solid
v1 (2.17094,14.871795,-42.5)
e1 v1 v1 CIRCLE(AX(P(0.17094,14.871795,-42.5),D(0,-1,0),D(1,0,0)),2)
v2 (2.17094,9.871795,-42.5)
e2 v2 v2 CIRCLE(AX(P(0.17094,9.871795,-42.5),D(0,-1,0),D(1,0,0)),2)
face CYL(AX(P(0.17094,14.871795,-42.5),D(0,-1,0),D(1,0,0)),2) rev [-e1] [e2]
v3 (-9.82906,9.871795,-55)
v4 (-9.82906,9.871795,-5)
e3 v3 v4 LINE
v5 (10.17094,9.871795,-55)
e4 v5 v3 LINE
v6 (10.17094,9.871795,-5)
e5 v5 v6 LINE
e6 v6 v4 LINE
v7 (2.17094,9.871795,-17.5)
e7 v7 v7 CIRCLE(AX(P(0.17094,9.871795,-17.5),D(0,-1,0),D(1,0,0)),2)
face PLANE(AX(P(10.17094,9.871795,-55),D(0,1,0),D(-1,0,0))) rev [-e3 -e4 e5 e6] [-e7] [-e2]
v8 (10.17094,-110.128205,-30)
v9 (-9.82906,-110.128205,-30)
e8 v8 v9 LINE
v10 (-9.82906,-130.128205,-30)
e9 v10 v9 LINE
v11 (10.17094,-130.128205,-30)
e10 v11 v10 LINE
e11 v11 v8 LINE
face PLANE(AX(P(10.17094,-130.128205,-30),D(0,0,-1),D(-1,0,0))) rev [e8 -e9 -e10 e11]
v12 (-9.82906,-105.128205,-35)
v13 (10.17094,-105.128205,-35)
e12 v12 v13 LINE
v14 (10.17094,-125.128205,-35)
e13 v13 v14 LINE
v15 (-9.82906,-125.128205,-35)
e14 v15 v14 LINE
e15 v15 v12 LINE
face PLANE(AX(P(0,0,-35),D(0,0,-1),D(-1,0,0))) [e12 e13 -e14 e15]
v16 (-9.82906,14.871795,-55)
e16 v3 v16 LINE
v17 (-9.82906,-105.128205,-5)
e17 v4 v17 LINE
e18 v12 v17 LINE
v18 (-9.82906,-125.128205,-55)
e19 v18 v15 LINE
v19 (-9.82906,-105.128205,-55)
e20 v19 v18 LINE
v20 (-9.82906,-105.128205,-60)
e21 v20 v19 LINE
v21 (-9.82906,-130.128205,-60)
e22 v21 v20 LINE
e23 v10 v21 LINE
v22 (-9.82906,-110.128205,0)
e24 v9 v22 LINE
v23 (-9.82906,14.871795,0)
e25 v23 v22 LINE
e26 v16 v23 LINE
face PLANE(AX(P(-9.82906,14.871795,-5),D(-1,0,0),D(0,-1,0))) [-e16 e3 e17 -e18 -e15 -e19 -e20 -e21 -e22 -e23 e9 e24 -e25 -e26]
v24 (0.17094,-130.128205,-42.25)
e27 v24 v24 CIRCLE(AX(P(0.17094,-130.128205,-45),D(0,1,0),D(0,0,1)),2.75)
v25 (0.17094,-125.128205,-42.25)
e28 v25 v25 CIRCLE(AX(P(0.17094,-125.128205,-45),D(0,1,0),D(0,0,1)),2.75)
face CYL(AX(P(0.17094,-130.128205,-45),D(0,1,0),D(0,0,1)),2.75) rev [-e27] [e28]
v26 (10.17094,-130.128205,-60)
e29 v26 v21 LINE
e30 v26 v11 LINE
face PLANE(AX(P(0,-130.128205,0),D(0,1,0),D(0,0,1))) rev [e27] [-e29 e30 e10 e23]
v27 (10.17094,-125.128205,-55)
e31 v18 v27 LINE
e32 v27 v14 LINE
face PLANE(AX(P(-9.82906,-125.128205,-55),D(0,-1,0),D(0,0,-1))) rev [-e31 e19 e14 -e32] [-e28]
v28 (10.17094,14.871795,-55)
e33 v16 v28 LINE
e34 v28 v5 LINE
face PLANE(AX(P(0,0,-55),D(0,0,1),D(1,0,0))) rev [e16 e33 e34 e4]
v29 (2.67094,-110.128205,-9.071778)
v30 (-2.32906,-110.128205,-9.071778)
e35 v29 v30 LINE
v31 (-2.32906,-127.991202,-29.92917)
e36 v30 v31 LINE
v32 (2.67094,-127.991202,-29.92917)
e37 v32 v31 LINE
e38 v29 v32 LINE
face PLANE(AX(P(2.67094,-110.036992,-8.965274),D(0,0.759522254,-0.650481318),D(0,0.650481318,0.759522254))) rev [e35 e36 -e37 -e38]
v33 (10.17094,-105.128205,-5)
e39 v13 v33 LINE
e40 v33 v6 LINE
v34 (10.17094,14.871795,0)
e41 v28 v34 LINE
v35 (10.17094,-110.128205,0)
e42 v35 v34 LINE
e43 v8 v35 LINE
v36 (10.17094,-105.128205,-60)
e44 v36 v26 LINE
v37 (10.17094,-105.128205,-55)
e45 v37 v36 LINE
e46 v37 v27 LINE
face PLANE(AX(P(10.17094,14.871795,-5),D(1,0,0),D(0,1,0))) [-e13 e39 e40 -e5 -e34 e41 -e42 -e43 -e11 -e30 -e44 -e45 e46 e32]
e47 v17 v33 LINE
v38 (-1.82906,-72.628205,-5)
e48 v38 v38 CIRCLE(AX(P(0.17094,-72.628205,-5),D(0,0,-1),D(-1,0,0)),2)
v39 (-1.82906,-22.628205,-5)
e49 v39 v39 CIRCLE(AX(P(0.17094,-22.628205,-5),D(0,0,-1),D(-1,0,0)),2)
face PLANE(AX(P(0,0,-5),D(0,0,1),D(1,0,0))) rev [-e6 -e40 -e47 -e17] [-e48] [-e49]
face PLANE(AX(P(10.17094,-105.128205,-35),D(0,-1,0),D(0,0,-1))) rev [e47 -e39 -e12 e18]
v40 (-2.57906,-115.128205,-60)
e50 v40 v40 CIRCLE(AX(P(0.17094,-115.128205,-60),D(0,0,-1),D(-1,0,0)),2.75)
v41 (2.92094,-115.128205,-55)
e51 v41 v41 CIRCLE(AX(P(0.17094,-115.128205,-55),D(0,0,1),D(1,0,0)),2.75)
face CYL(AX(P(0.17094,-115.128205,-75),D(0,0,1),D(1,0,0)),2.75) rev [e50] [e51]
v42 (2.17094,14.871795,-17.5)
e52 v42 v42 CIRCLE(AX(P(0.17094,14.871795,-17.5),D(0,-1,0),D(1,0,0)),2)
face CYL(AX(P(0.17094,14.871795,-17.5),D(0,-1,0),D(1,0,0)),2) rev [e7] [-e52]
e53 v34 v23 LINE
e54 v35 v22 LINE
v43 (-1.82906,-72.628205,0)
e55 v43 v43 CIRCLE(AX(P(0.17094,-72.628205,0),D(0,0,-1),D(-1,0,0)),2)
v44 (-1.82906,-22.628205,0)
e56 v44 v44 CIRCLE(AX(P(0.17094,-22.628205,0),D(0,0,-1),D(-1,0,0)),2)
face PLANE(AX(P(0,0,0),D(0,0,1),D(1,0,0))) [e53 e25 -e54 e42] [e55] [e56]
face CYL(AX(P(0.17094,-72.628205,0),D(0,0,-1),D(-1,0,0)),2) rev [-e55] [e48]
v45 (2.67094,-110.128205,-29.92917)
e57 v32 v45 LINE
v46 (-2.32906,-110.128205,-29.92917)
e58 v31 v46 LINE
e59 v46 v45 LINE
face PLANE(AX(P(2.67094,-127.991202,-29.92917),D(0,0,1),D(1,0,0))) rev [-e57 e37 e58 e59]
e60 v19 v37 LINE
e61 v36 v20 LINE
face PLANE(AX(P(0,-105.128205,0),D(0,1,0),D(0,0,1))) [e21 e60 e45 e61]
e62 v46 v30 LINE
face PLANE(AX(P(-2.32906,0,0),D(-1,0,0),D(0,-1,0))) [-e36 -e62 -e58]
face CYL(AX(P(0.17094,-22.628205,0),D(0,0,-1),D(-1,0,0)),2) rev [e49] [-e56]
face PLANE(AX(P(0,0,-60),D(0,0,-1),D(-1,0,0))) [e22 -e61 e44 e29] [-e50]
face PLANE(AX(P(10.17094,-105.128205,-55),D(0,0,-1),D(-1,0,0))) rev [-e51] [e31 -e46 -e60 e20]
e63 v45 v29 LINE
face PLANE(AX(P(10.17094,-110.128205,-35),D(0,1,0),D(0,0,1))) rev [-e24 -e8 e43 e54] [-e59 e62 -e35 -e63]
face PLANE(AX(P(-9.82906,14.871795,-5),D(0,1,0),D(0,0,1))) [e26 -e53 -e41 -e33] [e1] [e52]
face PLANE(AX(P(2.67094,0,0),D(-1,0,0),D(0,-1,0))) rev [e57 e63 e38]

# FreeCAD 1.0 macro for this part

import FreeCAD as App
import Part
import Sketcher

V = App.Vector


def add_polygon(sketch, points):
    """Adds a closed chain of lines whose ends are joined by coincident constraints."""
    first, n = sketch.GeometryCount, len(points)
    for a, b in zip(points, points[1:] + points[:1]):
        sketch.addGeometry(Part.LineSegment(App.Vector(*a, 0), App.Vector(*b, 0)), False)
    for i in range(n):
        sketch.addConstraint(Sketcher.Constraint("Coincident", first + i, 2, first + (i + 1) % n, 1))

doc = App.newDocument("Part")
body = doc.addObject("PartDesign::Body", "Body")

# Sketch on XY plane
sketch1 = body.newObject("Sketcher::SketchObject", "Sketch")
sketch1.AttachmentSupport = (doc.getObject("XY_Plane"), [""])
sketch1.MapMode = "FlatFace"
add_polygon(sketch1, [(-9.82906, 14.871795), (-9.82906, -130.128205), (10.17094, -130.128205), (10.17094, 14.871795)])  # lines 0-3
sketch1.addConstraint(Sketcher.Constraint("Vertical", 0))
sketch1.addConstraint(Sketcher.Constraint("Horizontal", 1))
sketch1.addConstraint(Sketcher.Constraint("Vertical", 2))
sketch1.addConstraint(Sketcher.Constraint("Horizontal", 3))
sketch1.addConstraint(Sketcher.Constraint("DistanceX", 1, 1, 1, 2, 20.0))
sketch1.addConstraint(Sketcher.Constraint("DistanceY", 0, 2, 0, 1, 145.0))
sketch1.addConstraint(Sketcher.Constraint("DistanceX", 0, 2, -1, 1, 9.82906))
sketch1.addConstraint(Sketcher.Constraint("DistanceY", 0, 2, -1, 1, 130.128205))
pad1 = body.newObject("PartDesign::Pad", "Pad")
pad1.Profile = sketch1
pad1.Length = 5
pad1.Reversed = True

# Sketch on XY plane
sketch2 = body.newObject("Sketcher::SketchObject", "Sketch001")
sketch2.AttachmentSupport = (doc.getObject("XY_Plane"), [""])
sketch2.MapMode = "FlatFace"
sketch2.AttachmentOffset = App.Placement(V(0, 0, -5), App.Rotation())
add_polygon(sketch2, [(10.17094, 14.871795), (10.17094, 9.871795), (-9.82906, 9.871795), (-9.82906, 14.871795)])  # lines 0-3
sketch2.addConstraint(Sketcher.Constraint("Vertical", 0))
sketch2.addConstraint(Sketcher.Constraint("Horizontal", 1))
sketch2.addConstraint(Sketcher.Constraint("Vertical", 2))
sketch2.addConstraint(Sketcher.Constraint("Horizontal", 3))
sketch2.addConstraint(Sketcher.Constraint("DistanceX", 1, 2, 1, 1, 20.0))
sketch2.addConstraint(Sketcher.Constraint("DistanceY", 0, 2, 0, 1, 5.0))
sketch2.addConstraint(Sketcher.Constraint("DistanceX", -1, 1, 0, 2, 10.17094))
sketch2.addConstraint(Sketcher.Constraint("DistanceY", -1, 1, 0, 2, 9.871795))
pad2 = body.newObject("PartDesign::Pad", "Pad001")
pad2.Profile = sketch2
pad2.Length = 50
pad2.Reversed = True

# Sketch on XY plane
sketch3 = body.newObject("Sketcher::SketchObject", "Sketch002")
sketch3.AttachmentSupport = (doc.getObject("XY_Plane"), [""])
sketch3.MapMode = "FlatFace"
sketch3.AttachmentOffset = App.Placement(V(0, 0, -5), App.Rotation())
add_polygon(sketch3, [(10.17094, -105.128205), (10.17094, -110.128205), (-9.82906, -110.128205), (-9.82906, -105.128205)])  # lines 0-3
sketch3.addConstraint(Sketcher.Constraint("Vertical", 0))
sketch3.addConstraint(Sketcher.Constraint("Horizontal", 1))
sketch3.addConstraint(Sketcher.Constraint("Vertical", 2))
sketch3.addConstraint(Sketcher.Constraint("Horizontal", 3))
sketch3.addConstraint(Sketcher.Constraint("DistanceX", 1, 2, 1, 1, 20.0))
sketch3.addConstraint(Sketcher.Constraint("DistanceY", 0, 2, 0, 1, 5.0))
sketch3.addConstraint(Sketcher.Constraint("DistanceX", -1, 1, 0, 2, 10.17094))
sketch3.addConstraint(Sketcher.Constraint("DistanceY", 0, 2, -1, 1, 110.128205))
pad3 = body.newObject("PartDesign::Pad", "Pad002")
pad3.Profile = sketch3
pad3.Length = 30
pad3.Reversed = True

# Sketch on XY plane
sketch4 = body.newObject("Sketcher::SketchObject", "Sketch003")
sketch4.AttachmentSupport = (doc.getObject("XY_Plane"), [""])
sketch4.MapMode = "FlatFace"
sketch4.AttachmentOffset = App.Placement(V(0, 0, -5), App.Rotation())
add_polygon(sketch4, [(10.17094, -110.128205), (10.17094, -130.128205), (-9.82906, -130.128205), (-9.82906, -110.128205)])  # lines 0-3
sketch4.addConstraint(Sketcher.Constraint("Vertical", 0))
sketch4.addConstraint(Sketcher.Constraint("Horizontal", 1))
sketch4.addConstraint(Sketcher.Constraint("Vertical", 2))
sketch4.addConstraint(Sketcher.Constraint("Horizontal", 3))
sketch4.addConstraint(Sketcher.Constraint("Equal", 3, 0))
sketch4.addConstraint(Sketcher.Constraint("DistanceX", 1, 2, 1, 1, 20.0))
sketch4.addConstraint(Sketcher.Constraint("DistanceX", -1, 1, 0, 2, 10.17094))
sketch4.addConstraint(Sketcher.Constraint("DistanceY", 0, 2, -1, 1, 130.128205))
pocket1 = body.newObject("PartDesign::Pocket", "Pocket")
pocket1.Profile = sketch4
pocket1.Length = 30
pocket1.Reversed = True

# Sketch on XZ plane
sketch5 = body.newObject("Sketcher::SketchObject", "Sketch004")
sketch5.AttachmentSupport = (doc.getObject("XZ_Plane"), [""])
sketch5.MapMode = "FlatFace"
sketch5.AttachmentOffset = App.Placement(V(0, 0, 110.128205), App.Rotation())
add_polygon(sketch5, [(10.17094, -35), (10.17094, -30), (-9.82906, -30), (-9.82906, -35)])  # lines 0-3
sketch5.addConstraint(Sketcher.Constraint("Vertical", 0))
sketch5.addConstraint(Sketcher.Constraint("Horizontal", 1))
sketch5.addConstraint(Sketcher.Constraint("Vertical", 2))
sketch5.addConstraint(Sketcher.Constraint("Horizontal", 3))
sketch5.addConstraint(Sketcher.Constraint("DistanceX", 1, 2, 1, 1, 20.0))
sketch5.addConstraint(Sketcher.Constraint("DistanceY", 0, 1, 0, 2, 5.0))
sketch5.addConstraint(Sketcher.Constraint("DistanceY", 0, 2, -1, 1, 30.0))
sketch5.addConstraint(Sketcher.Constraint("DistanceX", -1, 1, 0, 2, 10.17094))
pad4 = body.newObject("PartDesign::Pad", "Pad003")
pad4.Profile = sketch5
pad4.Length = 20

# Sketch on XY plane
sketch6 = body.newObject("Sketcher::SketchObject", "Sketch005")
sketch6.AttachmentSupport = (doc.getObject("XY_Plane"), [""])
sketch6.MapMode = "FlatFace"
sketch6.AttachmentOffset = App.Placement(V(0, 0, -35), App.Rotation())
add_polygon(sketch6, [(10.17094, -125.128205), (10.17094, -130.128205), (-9.82906, -130.128205), (-9.82906, -125.128205)])  # lines 0-3
sketch6.addConstraint(Sketcher.Constraint("Vertical", 0))
sketch6.addConstraint(Sketcher.Constraint("Horizontal", 1))
sketch6.addConstraint(Sketcher.Constraint("Vertical", 2))
sketch6.addConstraint(Sketcher.Constraint("Horizontal", 3))
sketch6.addConstraint(Sketcher.Constraint("DistanceX", 1, 2, 1, 1, 20.0))
sketch6.addConstraint(Sketcher.Constraint("DistanceY", 0, 2, 0, 1, 5.0))
sketch6.addConstraint(Sketcher.Constraint("DistanceX", -1, 1, 0, 2, 10.17094))
sketch6.addConstraint(Sketcher.Constraint("DistanceY", 0, 2, -1, 1, 130.128205))
pad5 = body.newObject("PartDesign::Pad", "Pad004")
pad5.Profile = sketch6
pad5.Length = 20
pad5.Reversed = True

# Sketch on YZ plane
sketch7 = body.newObject("Sketcher::SketchObject", "Sketch006")
sketch7.AttachmentSupport = (doc.getObject("YZ_Plane"), [""])
sketch7.MapMode = "FlatFace"
sketch7.AttachmentOffset = App.Placement(V(0, 0, 0.17094), App.Rotation())
add_polygon(sketch7, [(-110.036992, -8.965274), (-127.991202, -29.92917), (-110.036992, -29.92917)])  # lines 0-2
sketch7.addConstraint(Sketcher.Constraint("Horizontal", 1))
sketch7.addConstraint(Sketcher.Constraint("Vertical", 2))
sketch7.addConstraint(Sketcher.Constraint("DistanceX", 1, 1, 1, 2, 17.954211))
sketch7.addConstraint(Sketcher.Constraint("DistanceY", 2, 1, 2, 2, 20.963896))
sketch7.addConstraint(Sketcher.Constraint("DistanceY", 0, 2, -1, 1, 29.92917))
sketch7.addConstraint(Sketcher.Constraint("DistanceX", 1, 2, -1, 1, 110.036992))
pad6 = body.newObject("PartDesign::Pad", "Pad005")
pad6.Profile = sketch7
pad6.Length = 5
pad6.Midplane = True

# Sketch on XZ plane
sketch8 = body.newObject("Sketcher::SketchObject", "Sketch007")
sketch8.AttachmentSupport = (doc.getObject("XZ_Plane"), [""])
sketch8.MapMode = "FlatFace"
sketch8.AttachmentOffset = App.Placement(V(0, 0, -9.871795), App.Rotation())
sketch8.addGeometry(Part.Circle(V(0.17094, -17.5, 0), V(0, 0, 1), 2), False)
sketch8.addGeometry(Part.Circle(V(0.17094, -42.5, 0), V(0, 0, 1), 2), False)
sketch8.addConstraint(Sketcher.Constraint("Equal", 0, 1))
sketch8.addConstraint(Sketcher.Constraint("Vertical", 0, 3, 1, 3))
sketch8.addConstraint(Sketcher.Constraint("Diameter", 0, 4.0))
sketch8.addConstraint(Sketcher.Constraint("DistanceY", 1, 3, 0, 3, 25.0))
sketch8.addConstraint(Sketcher.Constraint("DistanceY", 0, 3, -1, 1, 17.5))
sketch8.addConstraint(Sketcher.Constraint("DistanceX", -1, 1, 0, 3, 0.17094))
pocket2 = body.newObject("PartDesign::Pocket", "Pocket001")
pocket2.Profile = sketch8
pocket2.Length = 5

# Sketch on XY plane
sketch9 = body.newObject("Sketcher::SketchObject", "Sketch008")
sketch9.AttachmentSupport = (doc.getObject("XY_Plane"), [""])
sketch9.MapMode = "FlatFace"
sketch9.AttachmentOffset = App.Placement(V(0, 0, -5), App.Rotation())
sketch9.addGeometry(Part.Circle(V(0.17094, -22.628205, 0), V(0, 0, 1), 2), False)
sketch9.addGeometry(Part.Circle(V(0.17094, -72.628205, 0), V(0, 0, 1), 2), False)
sketch9.addConstraint(Sketcher.Constraint("Equal", 0, 1))
sketch9.addConstraint(Sketcher.Constraint("Vertical", 0, 3, 1, 3))
sketch9.addConstraint(Sketcher.Constraint("Diameter", 0, 4.0))
sketch9.addConstraint(Sketcher.Constraint("DistanceY", 1, 3, 0, 3, 50.0))
sketch9.addConstraint(Sketcher.Constraint("DistanceX", -1, 1, 0, 3, 0.17094))
sketch9.addConstraint(Sketcher.Constraint("DistanceY", 0, 3, -1, 1, 22.628205))
pocket3 = body.newObject("PartDesign::Pocket", "Pocket002")
pocket3.Profile = sketch9
pocket3.Length = 5
pocket3.Reversed = True

# Sketch on XZ plane
sketch10 = body.newObject("Sketcher::SketchObject", "Sketch009")
sketch10.AttachmentSupport = (doc.getObject("XZ_Plane"), [""])
sketch10.MapMode = "FlatFace"
sketch10.AttachmentOffset = App.Placement(V(0, 0, 125.128205), App.Rotation())
sketch10.addGeometry(Part.Circle(V(0.17094, -45, 0), V(0, 0, 1), 2.75), False)
sketch10.addConstraint(Sketcher.Constraint("Diameter", 0, 5.5))
sketch10.addConstraint(Sketcher.Constraint("DistanceY", 0, 3, -1, 1, 45.0))
sketch10.addConstraint(Sketcher.Constraint("DistanceX", -1, 1, 0, 3, 0.17094))
pocket4 = body.newObject("PartDesign::Pocket", "Pocket003")
pocket4.Profile = sketch10
pocket4.Length = 5
pocket4.Reversed = True

# Sketch on XY plane
sketch11 = body.newObject("Sketcher::SketchObject", "Sketch010")
sketch11.AttachmentSupport = (doc.getObject("XY_Plane"), [""])
sketch11.MapMode = "FlatFace"
sketch11.AttachmentOffset = App.Placement(V(0, 0, -55), App.Rotation())
add_polygon(sketch11, [(10.17094, -125.128205), (10.17094, -130.128205), (-9.82906, -130.128205), (-9.82906, -125.128205)])  # lines 0-3
sketch11.addConstraint(Sketcher.Constraint("Vertical", 0))
sketch11.addConstraint(Sketcher.Constraint("Horizontal", 1))
sketch11.addConstraint(Sketcher.Constraint("Vertical", 2))
sketch11.addConstraint(Sketcher.Constraint("Horizontal", 3))
sketch11.addConstraint(Sketcher.Constraint("DistanceX", 1, 2, 1, 1, 20.0))
sketch11.addConstraint(Sketcher.Constraint("DistanceY", 0, 2, 0, 1, 5.0))
sketch11.addConstraint(Sketcher.Constraint("DistanceX", -1, 1, 0, 2, 10.17094))
sketch11.addConstraint(Sketcher.Constraint("DistanceY", 0, 2, -1, 1, 130.128205))
pad7 = body.newObject("PartDesign::Pad", "Pad006")
pad7.Profile = sketch11
pad7.Length = 5
pad7.Reversed = True

# Sketch on XZ plane
sketch12 = body.newObject("Sketcher::SketchObject", "Sketch011")
sketch12.AttachmentSupport = (doc.getObject("XZ_Plane"), [""])
sketch12.MapMode = "FlatFace"
sketch12.AttachmentOffset = App.Placement(V(0, 0, 125.128205), App.Rotation())
add_polygon(sketch12, [(-9.82906, -60), (-9.82906, -55), (10.17094, -55), (10.17094, -60)])  # lines 0-3
sketch12.addConstraint(Sketcher.Constraint("Vertical", 0))
sketch12.addConstraint(Sketcher.Constraint("Horizontal", 1))
sketch12.addConstraint(Sketcher.Constraint("Vertical", 2))
sketch12.addConstraint(Sketcher.Constraint("Horizontal", 3))
sketch12.addConstraint(Sketcher.Constraint("DistanceX", 1, 1, 1, 2, 20.0))
sketch12.addConstraint(Sketcher.Constraint("DistanceY", 0, 1, 0, 2, 5.0))
sketch12.addConstraint(Sketcher.Constraint("DistanceY", 0, 2, -1, 1, 55.0))
sketch12.addConstraint(Sketcher.Constraint("DistanceX", 0, 2, -1, 1, 9.82906))
pad8 = body.newObject("PartDesign::Pad", "Pad007")
pad8.Profile = sketch12
pad8.Length = 20
pad8.Reversed = True

# Sketch on XY plane
sketch13 = body.newObject("Sketcher::SketchObject", "Sketch012")
sketch13.AttachmentSupport = (doc.getObject("XY_Plane"), [""])
sketch13.MapMode = "FlatFace"
sketch13.AttachmentOffset = App.Placement(V(0, 0, -55), App.Rotation())
sketch13.addGeometry(Part.Circle(V(0.17094, -115.128205, 0), V(0, 0, 1), 2.75), False)
sketch13.addConstraint(Sketcher.Constraint("Diameter", 0, 5.5))
sketch13.addConstraint(Sketcher.Constraint("DistanceX", -1, 1, 0, 3, 0.17094))
sketch13.addConstraint(Sketcher.Constraint("DistanceY", 0, 3, -1, 1, 115.128205))
pocket5 = body.newObject("PartDesign::Pocket", "Pocket004")
pocket5.Profile = sketch13
pocket5.Length = 20

doc.recompute()
